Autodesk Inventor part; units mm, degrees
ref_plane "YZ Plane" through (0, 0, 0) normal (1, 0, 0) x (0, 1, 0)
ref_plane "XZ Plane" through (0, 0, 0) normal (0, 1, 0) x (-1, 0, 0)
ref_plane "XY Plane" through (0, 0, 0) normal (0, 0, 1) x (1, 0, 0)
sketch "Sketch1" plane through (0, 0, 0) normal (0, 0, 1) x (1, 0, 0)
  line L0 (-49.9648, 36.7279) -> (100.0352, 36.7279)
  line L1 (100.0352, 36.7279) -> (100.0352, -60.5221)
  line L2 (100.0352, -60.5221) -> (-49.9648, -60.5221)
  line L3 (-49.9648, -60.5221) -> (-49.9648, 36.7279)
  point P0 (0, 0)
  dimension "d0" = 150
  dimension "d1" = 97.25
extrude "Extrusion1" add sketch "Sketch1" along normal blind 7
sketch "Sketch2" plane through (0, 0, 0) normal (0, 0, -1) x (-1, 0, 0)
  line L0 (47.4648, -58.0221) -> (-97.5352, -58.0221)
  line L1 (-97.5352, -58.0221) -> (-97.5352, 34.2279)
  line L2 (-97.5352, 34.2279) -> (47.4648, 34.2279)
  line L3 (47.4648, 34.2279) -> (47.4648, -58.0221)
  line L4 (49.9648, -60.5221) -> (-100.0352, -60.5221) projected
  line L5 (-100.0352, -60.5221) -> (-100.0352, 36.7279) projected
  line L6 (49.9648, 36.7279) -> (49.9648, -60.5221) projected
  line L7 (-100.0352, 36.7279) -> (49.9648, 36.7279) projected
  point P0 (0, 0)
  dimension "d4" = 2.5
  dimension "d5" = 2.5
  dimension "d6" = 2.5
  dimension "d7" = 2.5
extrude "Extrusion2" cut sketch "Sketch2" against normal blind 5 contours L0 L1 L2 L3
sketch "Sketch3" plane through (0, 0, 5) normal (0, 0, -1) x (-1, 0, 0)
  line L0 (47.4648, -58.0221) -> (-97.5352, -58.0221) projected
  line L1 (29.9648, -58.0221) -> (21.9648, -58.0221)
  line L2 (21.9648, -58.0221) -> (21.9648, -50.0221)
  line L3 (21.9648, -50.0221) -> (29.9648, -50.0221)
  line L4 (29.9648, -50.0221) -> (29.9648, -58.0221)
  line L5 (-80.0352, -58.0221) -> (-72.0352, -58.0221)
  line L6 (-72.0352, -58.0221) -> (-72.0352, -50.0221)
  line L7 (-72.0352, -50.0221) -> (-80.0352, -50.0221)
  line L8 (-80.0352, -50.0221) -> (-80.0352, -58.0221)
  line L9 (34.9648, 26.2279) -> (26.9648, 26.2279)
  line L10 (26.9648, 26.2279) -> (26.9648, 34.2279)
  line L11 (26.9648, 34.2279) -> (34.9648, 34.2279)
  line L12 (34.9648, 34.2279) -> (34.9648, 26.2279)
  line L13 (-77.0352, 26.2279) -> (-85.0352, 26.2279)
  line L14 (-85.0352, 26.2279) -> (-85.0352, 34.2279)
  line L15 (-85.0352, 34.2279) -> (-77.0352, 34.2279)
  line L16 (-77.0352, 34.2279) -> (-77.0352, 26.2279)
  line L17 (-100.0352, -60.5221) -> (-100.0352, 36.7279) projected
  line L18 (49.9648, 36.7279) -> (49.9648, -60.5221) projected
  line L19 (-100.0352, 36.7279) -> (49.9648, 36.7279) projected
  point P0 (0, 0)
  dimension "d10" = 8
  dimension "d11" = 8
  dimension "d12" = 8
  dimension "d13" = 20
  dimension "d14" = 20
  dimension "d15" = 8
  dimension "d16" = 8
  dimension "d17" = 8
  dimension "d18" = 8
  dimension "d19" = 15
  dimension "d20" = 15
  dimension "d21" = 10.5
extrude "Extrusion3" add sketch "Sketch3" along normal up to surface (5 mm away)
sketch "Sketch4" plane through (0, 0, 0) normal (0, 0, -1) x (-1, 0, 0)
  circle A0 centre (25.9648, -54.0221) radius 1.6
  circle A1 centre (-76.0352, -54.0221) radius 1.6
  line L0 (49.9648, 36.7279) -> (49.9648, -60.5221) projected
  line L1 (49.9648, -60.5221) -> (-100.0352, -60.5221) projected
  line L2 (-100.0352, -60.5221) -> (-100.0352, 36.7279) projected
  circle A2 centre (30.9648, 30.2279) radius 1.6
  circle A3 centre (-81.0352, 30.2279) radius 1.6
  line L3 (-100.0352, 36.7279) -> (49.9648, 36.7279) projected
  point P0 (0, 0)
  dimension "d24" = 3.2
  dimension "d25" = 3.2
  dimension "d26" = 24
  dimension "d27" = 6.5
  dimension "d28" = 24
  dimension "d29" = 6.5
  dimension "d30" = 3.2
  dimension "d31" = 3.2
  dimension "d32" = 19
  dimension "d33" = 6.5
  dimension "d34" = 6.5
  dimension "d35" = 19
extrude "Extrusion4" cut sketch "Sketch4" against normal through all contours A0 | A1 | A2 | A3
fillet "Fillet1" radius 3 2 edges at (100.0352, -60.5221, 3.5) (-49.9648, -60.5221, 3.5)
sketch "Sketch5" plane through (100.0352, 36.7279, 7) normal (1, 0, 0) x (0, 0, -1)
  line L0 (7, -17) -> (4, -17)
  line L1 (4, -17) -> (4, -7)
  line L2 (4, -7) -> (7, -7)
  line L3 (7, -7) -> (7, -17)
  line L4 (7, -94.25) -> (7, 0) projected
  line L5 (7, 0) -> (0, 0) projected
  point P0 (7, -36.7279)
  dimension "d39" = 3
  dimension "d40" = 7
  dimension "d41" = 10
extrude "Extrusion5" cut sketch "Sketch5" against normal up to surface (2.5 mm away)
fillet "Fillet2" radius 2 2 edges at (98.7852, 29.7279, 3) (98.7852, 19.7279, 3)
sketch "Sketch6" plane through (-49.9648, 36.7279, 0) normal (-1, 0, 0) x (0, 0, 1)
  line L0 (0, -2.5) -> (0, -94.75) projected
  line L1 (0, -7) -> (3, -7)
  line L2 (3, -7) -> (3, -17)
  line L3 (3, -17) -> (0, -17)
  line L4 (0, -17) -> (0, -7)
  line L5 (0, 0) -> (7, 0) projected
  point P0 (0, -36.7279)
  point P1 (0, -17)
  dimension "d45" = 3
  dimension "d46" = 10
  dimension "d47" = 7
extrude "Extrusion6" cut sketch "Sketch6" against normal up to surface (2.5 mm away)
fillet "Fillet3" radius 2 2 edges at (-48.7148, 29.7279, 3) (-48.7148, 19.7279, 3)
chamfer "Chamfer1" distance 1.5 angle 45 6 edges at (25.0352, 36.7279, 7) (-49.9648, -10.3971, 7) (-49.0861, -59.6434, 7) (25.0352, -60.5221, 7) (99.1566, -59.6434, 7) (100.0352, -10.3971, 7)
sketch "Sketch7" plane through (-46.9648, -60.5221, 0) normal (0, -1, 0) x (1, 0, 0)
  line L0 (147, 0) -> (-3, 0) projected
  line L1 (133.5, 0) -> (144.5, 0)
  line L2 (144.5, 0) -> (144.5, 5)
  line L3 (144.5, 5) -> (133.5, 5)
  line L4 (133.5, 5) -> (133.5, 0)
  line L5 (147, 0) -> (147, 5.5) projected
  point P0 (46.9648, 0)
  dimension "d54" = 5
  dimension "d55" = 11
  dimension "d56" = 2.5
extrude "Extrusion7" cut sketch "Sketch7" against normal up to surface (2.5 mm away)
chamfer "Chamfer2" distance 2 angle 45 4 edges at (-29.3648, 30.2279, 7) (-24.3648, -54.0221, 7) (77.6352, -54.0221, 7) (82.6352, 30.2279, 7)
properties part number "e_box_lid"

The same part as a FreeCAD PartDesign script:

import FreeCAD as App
import Part
import Sketcher

V = App.Vector


def edges_at(feature, points):
    """Names of the edges that pass closest to the given points."""
    edges = feature.Shape.Edges
    near = lambda p: min(range(len(edges)), key=lambda i: edges[i].distToShape(Part.Vertex(*p))[0])
    return sorted({f"Edge{near(p) + 1}" for p in points})


def add_polygon(sketch, points):
    """Adds a closed chain of lines whose ends are joined by coincident constraints."""
    first, n = sketch.GeometryCount, len(points)
    for a, b in zip(points, points[1:] + points[:1]):
        sketch.addGeometry(Part.LineSegment(App.Vector(*a, 0), App.Vector(*b, 0)), False)
    for i in range(n):
        sketch.addConstraint(Sketcher.Constraint("Coincident", first + i, 2, first + (i + 1) % n, 1))

doc = App.newDocument("Part")
params = doc.addObject("Spreadsheet::Sheet", "Params")
for row, (alias, value) in enumerate([
    ("sketch1_width", "150 mm"),
    ("sketch1_height", "97.25 mm"),
    ("pad1_length", "7 mm"),
    ("sketch2_width", "145 mm"),
    ("sketch2_height", "92.25 mm"),
    ("pocket1_length", "5 mm"),
    ("sketch3_width", "8 mm"),
    ("pad2_length", "5 mm"),
    ("sketch4_diameter", "3.2 mm"),
    ("fillet_radius", "3 mm"),
    ("sketch5_width", "10 mm"),
    ("sketch5_height", "3 mm"),
    ("pocket3_length", "2.5 mm"),
    ("fillet2_radius", "2 mm"),
    ("sketch6_width", "10 mm"),
    ("sketch6_height", "3 mm"),
    ("pocket4_length", "2.5 mm"),
    ("fillet3_radius", "2 mm"),
    ("chamfer_size", "1.5 mm"),
    ("sketch7_width", "11 mm"),
    ("sketch7_height", "5 mm"),
    ("pocket5_length", "2.5 mm"),
    ("chamfer2_size", "2 mm"),
], start=1):
    params.set(f"A{row}", alias)
    params.set(f"B{row}", "=" + value)
    params.setAlias(f"B{row}", alias)

body = doc.addObject("PartDesign::Body", "Body")

sketch1 = body.newObject("Sketcher::SketchObject", "Sketch")
sketch1.AttachmentSupport = (doc.getObject("XY_Plane"), [""])
sketch1.MapMode = "FlatFace"
add_polygon(sketch1, [(100, 37), (-50, 37), (-50, -61), (100, -61)])
sketch1.addConstraint([
    Sketcher.Constraint("Horizontal", 0),
    Sketcher.Constraint("Vertical", 1),
    Sketcher.Constraint("Horizontal", 2),
    Sketcher.Constraint("Vertical", 3),
    Sketcher.Constraint("DistanceX", 0, 2, 0, 1, 150.0),
    Sketcher.Constraint("DistanceY", 1, 2, 1, 1, 97.25),
    Sketcher.Constraint("DistanceY", -1, 1, 0, 2, 36.728),
    Sketcher.Constraint("DistanceX", 0, 2, -1, 1, 49.9648),
])
sketch1.setExpression("Constraints[8]", "Params.sketch1_width")
sketch1.setExpression("Constraints[9]", "Params.sketch1_height")
pad1 = body.newObject("PartDesign::Pad", "Pad")
pad1.Profile = sketch1
pad1.setExpression("Length", "Params.pad1_length")

sketch2 = body.newObject("Sketcher::SketchObject", "Sketch001")
sketch2.AttachmentSupport = (doc.getObject("XY_Plane"), [""])
sketch2.MapMode = "FlatFace"
add_polygon(sketch2, [(98, -58), (-47, -58), (-47, 34), (98, 34)])
sketch2.addConstraint([
    Sketcher.Constraint("Horizontal", 0),
    Sketcher.Constraint("Vertical", 1),
    Sketcher.Constraint("Horizontal", 2),
    Sketcher.Constraint("Vertical", 3),
    Sketcher.Constraint("DistanceX", 0, 2, 0, 1, 145.0),
    Sketcher.Constraint("DistanceY", 1, 1, 1, 2, 92.25),
    Sketcher.Constraint("DistanceY", 0, 2, -1, 1, 58.022),
    Sketcher.Constraint("DistanceX", 0, 2, -1, 1, 47.4648),
])
sketch2.setExpression("Constraints[8]", "Params.sketch2_width")
sketch2.setExpression("Constraints[9]", "Params.sketch2_height")
pocket1 = body.newObject("PartDesign::Pocket", "Pocket")
pocket1.Profile = sketch2
pocket1.setExpression("Length", "Params.pocket1_length")
pocket1.Reversed = True

sketch3 = body.newObject("Sketcher::SketchObject", "Sketch002")
sketch3.AttachmentSupport = (doc.getObject("XY_Plane"), [""])
sketch3.MapMode = "FlatFace"
sketch3.AttachmentOffset = App.Placement(V(0, 0, 5), App.Rotation())
add_polygon(sketch3, [(80, -58), (72, -58), (72, -50), (80, -50)])
add_polygon(sketch3, [(-22, -58), (-30, -58), (-30, -50), (-22, -50)])
add_polygon(sketch3, [(-27, 26), (-35, 26), (-35, 34), (-27, 34)])
add_polygon(sketch3, [(85, 26), (77, 26), (77, 34), (85, 34)])
sketch3.addConstraint([
    Sketcher.Constraint("Horizontal", 0),
    Sketcher.Constraint("Vertical", 1),
    Sketcher.Constraint("Horizontal", 2),
    Sketcher.Constraint("Vertical", 3),
    Sketcher.Constraint("Horizontal", 4),
    Sketcher.Constraint("Vertical", 5),
    Sketcher.Constraint("Horizontal", 6),
    Sketcher.Constraint("Vertical", 7),
    Sketcher.Constraint("Horizontal", 8),
    Sketcher.Constraint("Vertical", 9),
    Sketcher.Constraint("Horizontal", 10),
    Sketcher.Constraint("Vertical", 11),
    Sketcher.Constraint("Horizontal", 12),
    Sketcher.Constraint("Vertical", 13),
    Sketcher.Constraint("Horizontal", 14),
    Sketcher.Constraint("Vertical", 15),
    Sketcher.Constraint("Horizontal", 3, 2, 4, 2),
    Sketcher.Constraint("Horizontal", 2, 2, 5, 2),
    Sketcher.Constraint("Horizontal", 11, 2, 12, 2),
    Sketcher.Constraint("Horizontal", 10, 2, 13, 2),
    Sketcher.Constraint("Equal", 2, 4),
    Sketcher.Constraint("Equal", 6, 8),
    Sketcher.Constraint("Equal", 10, 12),
    Sketcher.Constraint("Equal", 14, 1),
    Sketcher.Constraint("Equal", 7, 9),
    Sketcher.Constraint("DistanceX", 0, 2, 0, 1, 8.0),
    Sketcher.Constraint("DistanceX", 4, 2, 0, 2, 102.0),
    Sketcher.Constraint("DistanceX", 8, 2, 5, 2, 5.0),
    Sketcher.Constraint("DistanceX", 12, 2, 2, 2, 3.0),
    Sketcher.Constraint("DistanceY", 5, 2, 8, 2, 76.25),
    Sketcher.Constraint("DistanceY", 0, 2, -1, 1, 58.022),
    Sketcher.Constraint("DistanceX", -1, 1, 0, 2, 72.0352),
])
sketch3.setExpression("Constraints[41]", "Params.sketch3_width")
pad2 = body.newObject("PartDesign::Pad", "Pad001")
pad2.Profile = sketch3
pad2.setExpression("Length", "Params.pad2_length")
pad2.Reversed = True

sketch4 = body.newObject("Sketcher::SketchObject", "Sketch003")
sketch4.AttachmentSupport = (doc.getObject("XY_Plane"), [""])
sketch4.MapMode = "FlatFace"
sketch4.addGeometry([
    Part.Circle(V(-26, -54, 0), V(0, 0, 1), 1.6),
    Part.Circle(V(76, -54, 0), V(0, 0, 1), 1.6),
    Part.Circle(V(-31, 30.2, 0), V(0, 0, 1), 1.6),
    Part.Circle(V(81, 30.2, 0), V(0, 0, 1), 1.6),
], False)
sketch4.addConstraint([
    Sketcher.Constraint("Equal", 0, 1),
    Sketcher.Constraint("Equal", 1, 2),
    Sketcher.Constraint("Equal", 2, 3),
    Sketcher.Constraint("Horizontal", 0, 3, 1, 3),
    Sketcher.Constraint("Horizontal", 2, 3, 3, 3),
    Sketcher.Constraint("Diameter", 0, 3.2),
    Sketcher.Constraint("DistanceX", 0, 3, 1, 3, 102.0),
    Sketcher.Constraint("DistanceX", 2, 3, 0, 3, 5.0),
    Sketcher.Constraint("DistanceX", 1, 3, 3, 3, 5.0),
    Sketcher.Constraint("DistanceY", 0, 3, 2, 3, 84.25),
    Sketcher.Constraint("DistanceY", 0, 3, -1, 1, 54.022),
    Sketcher.Constraint("DistanceX", 0, 3, -1, 1, 25.9648),
])
sketch4.setExpression("Constraints[5]", "Params.sketch4_diameter")
pocket2 = body.newObject("PartDesign::Pocket", "Pocket001")
pocket2.Profile = sketch4
pocket2.Type = "ThroughAll"
pocket2.Reversed = True
doc.recompute()

fillet = body.newObject("PartDesign::Fillet", "Fillet")
fillet.Base = (pocket2, edges_at(pocket2, [(100.035, -60.522, 3.5), (-49.965, -60.522, 3.5)]))
fillet.setExpression("Radius", "Params.fillet_radius")

sketch5 = body.newObject("Sketcher::SketchObject", "Sketch004")
sketch5.AttachmentSupport = (doc.getObject("YZ_Plane"), [""])
sketch5.MapMode = "FlatFace"
sketch5.AttachmentOffset = App.Placement(V(0, 0, 100.0352), App.Rotation())
add_polygon(sketch5, [(19.7, 3), (19.7, 0), (29.7, 0), (29.7, 3)])
sketch5.addConstraint([
    Sketcher.Constraint("Vertical", 0),
    Sketcher.Constraint("Horizontal", 1),
    Sketcher.Constraint("Vertical", 2),
    Sketcher.Constraint("Horizontal", 3),
    Sketcher.Constraint("PointOnObject", 0, 2, -1),
    Sketcher.Constraint("DistanceX", 1, 1, 1, 2, 10.0),
    Sketcher.Constraint("DistanceY", 0, 2, 0, 1, 3.0),
    Sketcher.Constraint("DistanceX", -1, 1, 0, 2, 19.728),
])
sketch5.setExpression("Constraints[9]", "Params.sketch5_width")
sketch5.setExpression("Constraints[10]", "Params.sketch5_height")
pocket3 = body.newObject("PartDesign::Pocket", "Pocket002")
pocket3.Profile = sketch5
pocket3.setExpression("Length", "Params.pocket3_length")
doc.recompute()

fillet2 = body.newObject("PartDesign::Fillet", "Fillet001")
fillet2.Base = (pocket3, edges_at(pocket3, [(98.785, 29.728, 3), (98.785, 19.728, 3)]))
fillet2.setExpression("Radius", "Params.fillet2_radius")

sketch6 = body.newObject("Sketcher::SketchObject", "Sketch005")
sketch6.AttachmentSupport = (doc.getObject("YZ_Plane"), [""])
sketch6.MapMode = "FlatFace"
sketch6.AttachmentOffset = App.Placement(V(0, 0, -49.9648), App.Rotation())
add_polygon(sketch6, [(29.7, 3), (29.7, 0), (19.7, 0), (19.7, 3)])
sketch6.addConstraint([
    Sketcher.Constraint("Vertical", 0),
    Sketcher.Constraint("Horizontal", 1),
    Sketcher.Constraint("Vertical", 2),
    Sketcher.Constraint("Horizontal", 3),
    Sketcher.Constraint("PointOnObject", 0, 2, -1),
    Sketcher.Constraint("DistanceX", 1, 2, 1, 1, 10.0),
    Sketcher.Constraint("DistanceY", 0, 2, 0, 1, 3.0),
    Sketcher.Constraint("DistanceX", -1, 1, 0, 2, 29.728),
])
sketch6.setExpression("Constraints[9]", "Params.sketch6_width")
sketch6.setExpression("Constraints[10]", "Params.sketch6_height")
pocket4 = body.newObject("PartDesign::Pocket", "Pocket003")
pocket4.Profile = sketch6
pocket4.setExpression("Length", "Params.pocket4_length")
pocket4.Reversed = True
doc.recompute()

fillet3 = body.newObject("PartDesign::Fillet", "Fillet002")
fillet3.Base = (pocket4, edges_at(pocket4, [(-48.715, 29.728, 3), (-48.715, 19.728, 3)]))
fillet3.setExpression("Radius", "Params.fillet3_radius")
doc.recompute()

chamfer = body.newObject("PartDesign::Chamfer", "Chamfer")
chamfer.Base = (fillet3, edges_at(fillet3, [
    (25.035, 36.728, 7),
    (-49.965, -10.397, 7),
    (-49.086, -59.643, 7),
    (25.035, -60.522, 7),
    (99.157, -59.643, 7),
    (100.035, -10.397, 7),
]))
chamfer.setExpression("Size", "Params.chamfer_size")

sketch7 = body.newObject("Sketcher::SketchObject", "Sketch006")
sketch7.AttachmentSupport = (doc.getObject("XZ_Plane"), [""])
sketch7.MapMode = "FlatFace"
sketch7.AttachmentOffset = App.Placement(V(0, 0, 60.5221), App.Rotation())
add_polygon(sketch7, [(87, 0), (98, 0), (98, 5), (87, 5)])
sketch7.addConstraint([
    Sketcher.Constraint("Horizontal", 0),
    Sketcher.Constraint("Vertical", 1),
    Sketcher.Constraint("Horizontal", 2),
    Sketcher.Constraint("Vertical", 3),
    Sketcher.Constraint("PointOnObject", 0, 2, -1),
    Sketcher.Constraint("DistanceX", 0, 1, 0, 2, 11.0),
    Sketcher.Constraint("DistanceY", 1, 1, 1, 2, 5.0),
    Sketcher.Constraint("DistanceX", -1, 1, 0, 2, 97.5352),
])
sketch7.setExpression("Constraints[9]", "Params.sketch7_width")
sketch7.setExpression("Constraints[10]", "Params.sketch7_height")
pocket5 = body.newObject("PartDesign::Pocket", "Pocket004")
pocket5.Profile = sketch7
pocket5.setExpression("Length", "Params.pocket5_length")
doc.recompute()

chamfer2 = body.newObject("PartDesign::Chamfer", "Chamfer001")
chamfer2.Base = (pocket5, edges_at(pocket5, [
    (-29.365, 30.228, 7),
    (-24.365, -54.022, 7),
    (77.635, -54.022, 7),
    (82.635, 30.228, 7),
]))
chamfer2.setExpression("Size", "Params.chamfer2_size")

doc.recompute()
